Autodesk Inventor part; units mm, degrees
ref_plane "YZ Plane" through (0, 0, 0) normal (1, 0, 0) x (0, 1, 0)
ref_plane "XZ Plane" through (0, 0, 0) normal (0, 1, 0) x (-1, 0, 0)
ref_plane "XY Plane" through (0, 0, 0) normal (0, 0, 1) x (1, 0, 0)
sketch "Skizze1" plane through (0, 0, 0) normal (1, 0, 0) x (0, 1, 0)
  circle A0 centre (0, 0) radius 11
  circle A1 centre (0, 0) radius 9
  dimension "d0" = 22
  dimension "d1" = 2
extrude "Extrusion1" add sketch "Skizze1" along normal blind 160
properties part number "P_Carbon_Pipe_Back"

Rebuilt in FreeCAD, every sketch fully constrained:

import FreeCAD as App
import Part
import Sketcher

V = App.Vector
Q = App.Units.Quantity

doc = App.newDocument("Part")
body = doc.addObject("PartDesign::Body", "Body")

# Sketch on YZ plane
sketch1 = body.newObject("Sketcher::SketchObject", "Sketch")
sketch1.AttachmentSupport = (doc.getObject("YZ_Plane"), [""])
sketch1.MapMode = "FlatFace"
sketch1.addGeometry([
    Part.Circle(V(0, 0, 0), V(0, 0, 1), 11),
    Part.Circle(V(0, 0, 0), V(0, 0, 1), 9),
], False)
sketch1.addConstraint([
    Sketcher.Constraint("Coincident", 0, 3, -1, 1),
    Sketcher.Constraint("Coincident", 1, 3, -1, 1),
    Sketcher.Constraint("Diameter", 0, Q("22 mm")),
    Sketcher.Constraint("Diameter", 1, Q("18 mm")),
])
pad1 = body.newObject("PartDesign::Pad", "Pad")
pad1.Profile = sketch1
pad1.Length = 160

doc.recompute()
